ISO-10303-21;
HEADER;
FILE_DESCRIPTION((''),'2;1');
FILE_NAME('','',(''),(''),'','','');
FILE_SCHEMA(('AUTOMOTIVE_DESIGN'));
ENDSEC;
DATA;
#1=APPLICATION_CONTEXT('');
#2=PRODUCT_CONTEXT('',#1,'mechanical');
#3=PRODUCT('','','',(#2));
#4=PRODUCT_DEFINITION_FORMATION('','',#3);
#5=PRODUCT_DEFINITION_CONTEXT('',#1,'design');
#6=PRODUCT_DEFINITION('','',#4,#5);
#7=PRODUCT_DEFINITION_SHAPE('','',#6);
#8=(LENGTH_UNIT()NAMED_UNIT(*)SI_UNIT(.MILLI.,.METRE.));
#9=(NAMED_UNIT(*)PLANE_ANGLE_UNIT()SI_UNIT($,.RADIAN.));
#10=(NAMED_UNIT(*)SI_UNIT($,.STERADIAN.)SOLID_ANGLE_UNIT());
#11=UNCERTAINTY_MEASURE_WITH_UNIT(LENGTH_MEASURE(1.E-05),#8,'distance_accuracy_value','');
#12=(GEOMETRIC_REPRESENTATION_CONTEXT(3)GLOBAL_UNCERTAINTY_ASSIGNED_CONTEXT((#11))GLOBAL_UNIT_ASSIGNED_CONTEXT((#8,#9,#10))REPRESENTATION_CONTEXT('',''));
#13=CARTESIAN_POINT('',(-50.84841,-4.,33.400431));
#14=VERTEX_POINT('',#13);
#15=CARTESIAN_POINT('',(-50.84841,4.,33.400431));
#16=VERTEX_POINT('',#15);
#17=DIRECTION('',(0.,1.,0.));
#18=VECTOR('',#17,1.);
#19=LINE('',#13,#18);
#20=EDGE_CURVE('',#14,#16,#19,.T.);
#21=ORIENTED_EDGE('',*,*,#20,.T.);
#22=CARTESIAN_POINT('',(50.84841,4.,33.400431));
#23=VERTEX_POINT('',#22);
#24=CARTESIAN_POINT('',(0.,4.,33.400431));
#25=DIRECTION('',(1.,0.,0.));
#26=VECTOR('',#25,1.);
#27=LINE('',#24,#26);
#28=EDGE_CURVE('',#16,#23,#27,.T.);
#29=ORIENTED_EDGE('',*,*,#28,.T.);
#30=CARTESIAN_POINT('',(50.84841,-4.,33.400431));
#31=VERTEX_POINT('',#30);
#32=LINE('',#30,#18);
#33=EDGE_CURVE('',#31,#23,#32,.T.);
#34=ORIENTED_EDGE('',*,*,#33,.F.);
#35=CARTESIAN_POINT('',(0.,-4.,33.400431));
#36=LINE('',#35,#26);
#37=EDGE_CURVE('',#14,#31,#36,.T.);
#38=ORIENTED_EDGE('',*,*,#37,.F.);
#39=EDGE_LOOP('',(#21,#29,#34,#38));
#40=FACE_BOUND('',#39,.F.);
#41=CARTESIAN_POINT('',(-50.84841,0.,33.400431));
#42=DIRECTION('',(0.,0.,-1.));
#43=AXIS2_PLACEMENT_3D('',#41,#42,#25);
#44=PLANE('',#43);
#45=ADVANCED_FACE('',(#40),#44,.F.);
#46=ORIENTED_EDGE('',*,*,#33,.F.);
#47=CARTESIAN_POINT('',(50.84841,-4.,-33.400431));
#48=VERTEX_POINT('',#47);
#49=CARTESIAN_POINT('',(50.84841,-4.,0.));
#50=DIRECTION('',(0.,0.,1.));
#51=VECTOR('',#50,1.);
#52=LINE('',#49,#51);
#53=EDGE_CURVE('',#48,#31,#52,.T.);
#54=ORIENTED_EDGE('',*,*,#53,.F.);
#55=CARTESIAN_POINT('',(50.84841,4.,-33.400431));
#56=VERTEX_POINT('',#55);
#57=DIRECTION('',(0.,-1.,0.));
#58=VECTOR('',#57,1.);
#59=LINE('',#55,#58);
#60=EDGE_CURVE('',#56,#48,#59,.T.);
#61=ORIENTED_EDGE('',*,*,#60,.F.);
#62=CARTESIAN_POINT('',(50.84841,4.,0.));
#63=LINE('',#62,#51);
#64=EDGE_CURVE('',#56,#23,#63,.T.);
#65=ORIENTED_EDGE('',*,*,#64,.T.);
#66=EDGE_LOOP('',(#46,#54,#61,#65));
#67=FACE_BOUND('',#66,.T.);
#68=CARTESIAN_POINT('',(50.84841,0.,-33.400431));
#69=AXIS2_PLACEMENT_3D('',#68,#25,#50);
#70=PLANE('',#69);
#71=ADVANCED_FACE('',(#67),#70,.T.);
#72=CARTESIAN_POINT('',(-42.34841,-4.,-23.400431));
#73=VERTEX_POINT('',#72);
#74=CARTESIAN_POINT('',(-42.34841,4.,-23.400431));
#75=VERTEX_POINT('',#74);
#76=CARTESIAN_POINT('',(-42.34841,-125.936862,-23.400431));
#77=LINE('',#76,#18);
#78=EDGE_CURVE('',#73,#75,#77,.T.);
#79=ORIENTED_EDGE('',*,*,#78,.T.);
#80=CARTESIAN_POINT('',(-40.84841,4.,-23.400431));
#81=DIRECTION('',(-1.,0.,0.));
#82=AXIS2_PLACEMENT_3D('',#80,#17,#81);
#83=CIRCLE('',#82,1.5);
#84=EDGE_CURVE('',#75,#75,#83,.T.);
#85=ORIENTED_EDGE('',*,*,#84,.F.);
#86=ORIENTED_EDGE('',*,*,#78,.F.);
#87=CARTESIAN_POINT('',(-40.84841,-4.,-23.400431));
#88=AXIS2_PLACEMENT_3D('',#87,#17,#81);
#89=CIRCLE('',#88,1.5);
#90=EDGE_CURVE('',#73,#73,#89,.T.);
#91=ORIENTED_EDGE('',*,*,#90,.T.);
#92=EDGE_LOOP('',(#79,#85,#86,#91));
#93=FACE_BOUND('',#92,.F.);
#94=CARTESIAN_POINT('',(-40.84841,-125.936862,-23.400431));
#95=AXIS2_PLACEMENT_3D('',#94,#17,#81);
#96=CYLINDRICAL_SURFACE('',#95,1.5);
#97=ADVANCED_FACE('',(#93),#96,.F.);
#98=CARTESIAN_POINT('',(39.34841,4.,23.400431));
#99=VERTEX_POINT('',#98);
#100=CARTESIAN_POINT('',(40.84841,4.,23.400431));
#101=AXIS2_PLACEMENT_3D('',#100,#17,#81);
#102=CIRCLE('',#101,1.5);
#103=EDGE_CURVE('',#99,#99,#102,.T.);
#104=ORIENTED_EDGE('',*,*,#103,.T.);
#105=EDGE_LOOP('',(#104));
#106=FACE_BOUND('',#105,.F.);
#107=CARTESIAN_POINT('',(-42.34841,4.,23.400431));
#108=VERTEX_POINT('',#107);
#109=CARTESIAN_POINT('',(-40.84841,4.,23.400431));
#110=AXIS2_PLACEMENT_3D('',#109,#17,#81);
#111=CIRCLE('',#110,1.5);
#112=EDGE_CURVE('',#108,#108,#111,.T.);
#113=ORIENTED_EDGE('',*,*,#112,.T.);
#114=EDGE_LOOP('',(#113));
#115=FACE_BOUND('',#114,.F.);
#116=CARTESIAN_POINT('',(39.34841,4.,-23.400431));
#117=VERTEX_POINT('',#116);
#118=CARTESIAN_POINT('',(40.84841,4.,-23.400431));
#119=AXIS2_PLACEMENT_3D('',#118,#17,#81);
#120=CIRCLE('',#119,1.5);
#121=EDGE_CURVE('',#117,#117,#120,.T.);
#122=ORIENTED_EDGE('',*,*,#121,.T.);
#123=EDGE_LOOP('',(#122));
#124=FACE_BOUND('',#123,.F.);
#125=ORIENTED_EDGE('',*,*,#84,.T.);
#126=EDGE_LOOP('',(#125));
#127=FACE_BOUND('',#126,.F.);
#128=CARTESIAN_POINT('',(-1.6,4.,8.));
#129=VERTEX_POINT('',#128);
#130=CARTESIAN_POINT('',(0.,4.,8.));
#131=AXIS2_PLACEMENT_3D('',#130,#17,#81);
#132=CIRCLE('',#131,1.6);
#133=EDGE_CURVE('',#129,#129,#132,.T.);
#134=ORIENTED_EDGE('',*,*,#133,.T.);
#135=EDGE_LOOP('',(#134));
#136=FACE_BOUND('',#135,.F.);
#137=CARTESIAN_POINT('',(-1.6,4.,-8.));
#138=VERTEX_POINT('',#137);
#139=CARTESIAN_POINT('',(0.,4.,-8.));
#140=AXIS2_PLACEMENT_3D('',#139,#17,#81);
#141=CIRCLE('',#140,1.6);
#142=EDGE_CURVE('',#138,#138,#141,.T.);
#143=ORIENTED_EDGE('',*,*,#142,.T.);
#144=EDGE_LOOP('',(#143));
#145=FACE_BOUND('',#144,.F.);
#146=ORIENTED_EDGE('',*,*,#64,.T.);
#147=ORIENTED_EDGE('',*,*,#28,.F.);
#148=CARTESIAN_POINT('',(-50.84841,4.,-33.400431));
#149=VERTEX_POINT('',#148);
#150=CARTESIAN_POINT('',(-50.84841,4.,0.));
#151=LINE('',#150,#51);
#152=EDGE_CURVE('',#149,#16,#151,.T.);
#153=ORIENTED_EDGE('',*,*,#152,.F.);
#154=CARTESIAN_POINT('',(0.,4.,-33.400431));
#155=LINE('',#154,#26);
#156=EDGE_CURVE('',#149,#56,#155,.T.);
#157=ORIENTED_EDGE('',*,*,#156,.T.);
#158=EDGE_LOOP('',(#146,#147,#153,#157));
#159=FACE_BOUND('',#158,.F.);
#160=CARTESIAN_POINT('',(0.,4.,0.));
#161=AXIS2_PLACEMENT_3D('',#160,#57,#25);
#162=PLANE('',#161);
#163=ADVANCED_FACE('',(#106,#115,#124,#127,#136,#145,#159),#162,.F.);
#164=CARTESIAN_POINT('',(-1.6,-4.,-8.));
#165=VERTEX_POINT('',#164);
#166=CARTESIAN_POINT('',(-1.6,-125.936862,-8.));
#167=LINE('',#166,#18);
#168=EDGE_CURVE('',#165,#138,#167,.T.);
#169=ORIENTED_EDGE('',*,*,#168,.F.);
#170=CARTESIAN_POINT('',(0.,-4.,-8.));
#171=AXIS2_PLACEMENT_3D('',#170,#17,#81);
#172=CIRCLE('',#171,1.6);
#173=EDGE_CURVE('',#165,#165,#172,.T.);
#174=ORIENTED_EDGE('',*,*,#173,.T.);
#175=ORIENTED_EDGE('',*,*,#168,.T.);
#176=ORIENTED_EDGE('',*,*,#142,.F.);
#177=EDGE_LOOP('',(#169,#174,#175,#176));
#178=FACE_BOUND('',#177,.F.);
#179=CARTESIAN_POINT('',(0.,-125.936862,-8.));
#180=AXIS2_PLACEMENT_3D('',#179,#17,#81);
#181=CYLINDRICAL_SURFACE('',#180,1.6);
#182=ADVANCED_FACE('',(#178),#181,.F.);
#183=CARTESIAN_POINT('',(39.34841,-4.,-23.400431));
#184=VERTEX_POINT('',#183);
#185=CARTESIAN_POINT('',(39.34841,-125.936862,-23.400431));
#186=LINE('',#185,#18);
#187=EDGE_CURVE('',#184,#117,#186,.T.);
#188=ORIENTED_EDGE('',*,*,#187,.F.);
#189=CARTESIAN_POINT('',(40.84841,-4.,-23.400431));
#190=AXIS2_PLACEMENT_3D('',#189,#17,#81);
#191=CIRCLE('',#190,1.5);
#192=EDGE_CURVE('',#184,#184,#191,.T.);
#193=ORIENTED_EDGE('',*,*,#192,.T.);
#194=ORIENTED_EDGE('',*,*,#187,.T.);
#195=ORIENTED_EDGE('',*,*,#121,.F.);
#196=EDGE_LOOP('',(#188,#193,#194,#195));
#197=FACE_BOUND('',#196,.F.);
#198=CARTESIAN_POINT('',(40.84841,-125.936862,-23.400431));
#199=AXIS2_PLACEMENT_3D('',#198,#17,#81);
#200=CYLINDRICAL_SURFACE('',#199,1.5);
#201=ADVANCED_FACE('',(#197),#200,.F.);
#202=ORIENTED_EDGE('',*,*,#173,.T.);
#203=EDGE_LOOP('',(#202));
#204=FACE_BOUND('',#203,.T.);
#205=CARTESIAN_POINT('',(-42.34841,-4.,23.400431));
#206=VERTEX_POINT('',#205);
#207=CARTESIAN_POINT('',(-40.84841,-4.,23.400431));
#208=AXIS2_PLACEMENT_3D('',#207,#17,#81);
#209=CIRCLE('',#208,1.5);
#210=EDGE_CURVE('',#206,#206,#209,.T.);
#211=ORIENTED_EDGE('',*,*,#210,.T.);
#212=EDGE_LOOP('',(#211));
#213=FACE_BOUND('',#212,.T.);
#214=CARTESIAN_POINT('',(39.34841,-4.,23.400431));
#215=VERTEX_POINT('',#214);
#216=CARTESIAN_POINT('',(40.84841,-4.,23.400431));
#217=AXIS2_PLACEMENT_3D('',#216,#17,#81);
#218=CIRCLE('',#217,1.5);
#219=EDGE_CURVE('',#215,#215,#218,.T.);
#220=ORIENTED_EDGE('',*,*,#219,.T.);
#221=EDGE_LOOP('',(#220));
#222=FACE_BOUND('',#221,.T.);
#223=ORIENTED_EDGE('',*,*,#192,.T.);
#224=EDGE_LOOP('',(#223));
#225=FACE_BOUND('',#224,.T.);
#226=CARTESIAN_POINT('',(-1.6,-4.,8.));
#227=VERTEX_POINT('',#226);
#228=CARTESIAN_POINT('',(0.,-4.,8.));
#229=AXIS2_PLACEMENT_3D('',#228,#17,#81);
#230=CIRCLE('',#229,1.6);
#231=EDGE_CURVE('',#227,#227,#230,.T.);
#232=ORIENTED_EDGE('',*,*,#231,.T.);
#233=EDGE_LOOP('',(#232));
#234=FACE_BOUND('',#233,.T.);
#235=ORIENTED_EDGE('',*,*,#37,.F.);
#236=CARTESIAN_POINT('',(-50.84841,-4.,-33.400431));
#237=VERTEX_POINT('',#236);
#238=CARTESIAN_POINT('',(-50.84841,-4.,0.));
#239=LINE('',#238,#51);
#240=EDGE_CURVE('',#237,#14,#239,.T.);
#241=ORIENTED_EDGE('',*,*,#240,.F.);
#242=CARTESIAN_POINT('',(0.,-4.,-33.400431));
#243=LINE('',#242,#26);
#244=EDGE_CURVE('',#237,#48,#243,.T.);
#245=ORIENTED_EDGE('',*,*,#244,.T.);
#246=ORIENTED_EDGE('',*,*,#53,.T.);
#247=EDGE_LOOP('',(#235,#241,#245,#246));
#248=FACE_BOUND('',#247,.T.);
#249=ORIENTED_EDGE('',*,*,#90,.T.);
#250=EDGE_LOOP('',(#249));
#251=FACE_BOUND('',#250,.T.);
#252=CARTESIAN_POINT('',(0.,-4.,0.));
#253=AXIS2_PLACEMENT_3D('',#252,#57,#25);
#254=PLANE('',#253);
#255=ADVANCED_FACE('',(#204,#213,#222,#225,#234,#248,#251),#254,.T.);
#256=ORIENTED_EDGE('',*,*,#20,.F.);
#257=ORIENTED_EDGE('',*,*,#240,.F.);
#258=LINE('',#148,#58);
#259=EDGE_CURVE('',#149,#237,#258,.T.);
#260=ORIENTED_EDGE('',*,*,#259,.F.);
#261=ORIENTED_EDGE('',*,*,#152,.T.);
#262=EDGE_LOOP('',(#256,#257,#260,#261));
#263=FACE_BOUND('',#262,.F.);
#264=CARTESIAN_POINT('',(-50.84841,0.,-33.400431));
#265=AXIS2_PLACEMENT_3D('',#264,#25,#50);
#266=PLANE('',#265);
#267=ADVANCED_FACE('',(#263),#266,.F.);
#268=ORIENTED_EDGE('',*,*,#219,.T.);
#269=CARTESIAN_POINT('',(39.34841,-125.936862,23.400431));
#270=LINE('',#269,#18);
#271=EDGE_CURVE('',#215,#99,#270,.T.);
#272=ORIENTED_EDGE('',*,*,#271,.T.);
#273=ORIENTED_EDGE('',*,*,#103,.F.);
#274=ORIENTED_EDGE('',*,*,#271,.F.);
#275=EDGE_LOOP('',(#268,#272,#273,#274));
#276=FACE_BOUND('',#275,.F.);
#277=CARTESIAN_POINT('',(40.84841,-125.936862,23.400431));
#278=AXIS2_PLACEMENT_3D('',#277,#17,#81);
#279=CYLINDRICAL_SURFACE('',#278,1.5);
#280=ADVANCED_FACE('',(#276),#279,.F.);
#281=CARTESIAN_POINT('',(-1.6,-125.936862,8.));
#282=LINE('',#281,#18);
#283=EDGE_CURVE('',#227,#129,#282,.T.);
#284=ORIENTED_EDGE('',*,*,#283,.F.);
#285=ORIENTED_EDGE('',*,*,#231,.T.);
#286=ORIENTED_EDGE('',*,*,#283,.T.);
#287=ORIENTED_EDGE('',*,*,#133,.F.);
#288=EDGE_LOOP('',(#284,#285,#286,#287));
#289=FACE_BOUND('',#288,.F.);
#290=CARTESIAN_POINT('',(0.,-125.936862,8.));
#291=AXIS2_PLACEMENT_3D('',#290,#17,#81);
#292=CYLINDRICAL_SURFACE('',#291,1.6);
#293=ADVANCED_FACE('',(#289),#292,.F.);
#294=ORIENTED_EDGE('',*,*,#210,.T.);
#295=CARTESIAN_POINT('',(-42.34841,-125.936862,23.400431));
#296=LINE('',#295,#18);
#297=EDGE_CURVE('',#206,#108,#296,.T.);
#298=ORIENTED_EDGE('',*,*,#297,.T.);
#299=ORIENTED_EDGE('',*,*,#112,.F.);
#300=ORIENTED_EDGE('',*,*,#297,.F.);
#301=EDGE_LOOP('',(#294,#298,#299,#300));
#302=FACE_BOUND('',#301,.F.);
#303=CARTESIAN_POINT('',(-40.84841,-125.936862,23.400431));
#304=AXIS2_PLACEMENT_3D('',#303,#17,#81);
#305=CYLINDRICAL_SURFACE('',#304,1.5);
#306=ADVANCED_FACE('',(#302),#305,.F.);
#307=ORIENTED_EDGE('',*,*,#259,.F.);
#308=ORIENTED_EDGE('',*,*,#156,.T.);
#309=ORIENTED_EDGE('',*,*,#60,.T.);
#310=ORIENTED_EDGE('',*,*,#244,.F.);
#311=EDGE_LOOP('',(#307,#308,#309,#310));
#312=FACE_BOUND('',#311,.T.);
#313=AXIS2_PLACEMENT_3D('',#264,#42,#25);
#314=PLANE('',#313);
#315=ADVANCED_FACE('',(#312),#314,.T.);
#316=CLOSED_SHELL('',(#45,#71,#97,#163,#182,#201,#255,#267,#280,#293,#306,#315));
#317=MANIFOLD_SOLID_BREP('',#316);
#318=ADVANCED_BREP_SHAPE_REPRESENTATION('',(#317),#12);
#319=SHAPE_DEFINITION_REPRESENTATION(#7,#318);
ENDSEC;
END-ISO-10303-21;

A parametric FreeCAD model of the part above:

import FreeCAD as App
import Part
import Sketcher

V = App.Vector

doc = App.newDocument("Part")
body = doc.addObject("PartDesign::Body", "Body")

sketch1 = doc.addObject("Sketcher::SketchObject", "Sketch")
body.addObject(sketch1)
sketch1.AttachmentSupport = (doc.XZ_Plane, [""])
sketch1.MapMode = "FlatFace"
sketch1.addGeometry([
    Part.LineSegment(V(-51, 33, 0), V(-51, -33, 0)),
    Part.LineSegment(V(-51, -33, 0), V(51, -33, 0)),
    Part.LineSegment(V(51, -33, 0), V(51, 33, 0)),
    Part.LineSegment(V(51, 33, 0), V(-51, 33, 0)),
], False)
sketch1.addConstraint([
    Sketcher.Constraint("Coincident", 0, 2, 1, 1),
    Sketcher.Constraint("Coincident", 1, 2, 2, 1),
    Sketcher.Constraint("Coincident", 2, 2, 3, 1),
    Sketcher.Constraint("Coincident", 3, 2, 0, 1),
    Sketcher.Constraint("Vertical", 0),
    Sketcher.Constraint("Horizontal", 1),
    Sketcher.Constraint("Vertical", 2),
    Sketcher.Constraint("Horizontal", 3),
    Sketcher.Constraint("Symmetric", 0, 2, 2, 2, -1, 1),
    Sketcher.Constraint("DistanceX", 1, 1, 1, 2, 101.69682),
    Sketcher.Constraint("DistanceY", 0, 2, 0, 1, 66.800862),
])
pad1 = doc.addObject("PartDesign::Pad", "Pad")
body.addObject(pad1)
pad1.Profile = sketch1
pad1.Length = 8
pad1.Midplane = True

sketch2 = doc.addObject("Sketcher::SketchObject", "Sketch001")
body.addObject(sketch2)
sketch2.AttachmentSupport = (doc.XZ_Plane, [""])
sketch2.MapMode = "FlatFace"
sketch2.AttachmentOffset = App.Placement(V(0, 0, 4), App.Rotation())
sketch2.addGeometry([
    Part.Circle(V(-40.8, 23.4, 0), V(0, 0, 1), 1.5),
    Part.Circle(V(40.8, 23.4, 0), V(0, 0, 1), 1.5),
    Part.Circle(V(40.8, -23.4, 0), V(0, 0, 1), 1.5),
    Part.Circle(V(-40.8, -23.4, 0), V(0, 0, 1), 1.5),
], False)
sketch2.addConstraint([
    Sketcher.Constraint("Equal", 0, 1),
    Sketcher.Constraint("Equal", 1, 2),
    Sketcher.Constraint("Equal", 2, 3),
    Sketcher.Constraint("Symmetric", 0, 3, 2, 3, -1, 1),
    Sketcher.Constraint("Symmetric", 1, 3, 3, 3, -1, 1),
    Sketcher.Constraint("Symmetric", 0, 3, 1, 3, -2),
    Sketcher.Constraint("Diameter", 0, 3.0),
    Sketcher.Constraint("DistanceX", 0, 3, -1, 1, 40.84841),
    Sketcher.Constraint("DistanceY", -1, 1, 0, 3, 23.400431),
])
doc.recompute()
hole = doc.addObject("PartDesign::Hole", "Hole")
body.addObject(hole)
hole.Profile = sketch2
hole.ThreadType = "None"
hole.Diameter = 3
hole.DepthType = "ThroughAll"

sketch3 = doc.addObject("Sketcher::SketchObject", "Sketch002")
body.addObject(sketch3)
sketch3.AttachmentSupport = (doc.XZ_Plane, [""])
sketch3.MapMode = "FlatFace"
sketch3.AttachmentOffset = App.Placement(V(0, 0, 4), App.Rotation())
sketch3.addGeometry([
    Part.Circle(V(0, 8, 0), V(0, 0, 1), 1.6),
    Part.Circle(V(0, -8, 0), V(0, 0, 1), 1.6),
], False)
sketch3.addConstraint([
    Sketcher.Constraint("Equal", 0, 1),
    Sketcher.Constraint("Symmetric", 0, 3, 1, 3, -1, 1),
    Sketcher.Constraint("PointOnObject", 0, 3, -2),
    Sketcher.Constraint("Diameter", 0, 3.2),
    Sketcher.Constraint("DistanceY", -1, 1, 0, 3, 8.0),
])
doc.recompute()
hole2 = doc.addObject("PartDesign::Hole", "Hole001")
body.addObject(hole2)
hole2.Profile = sketch3
hole2.ThreadType = "None"
hole2.Diameter = 3.2
hole2.DepthType = "ThroughAll"

doc.recompute()
